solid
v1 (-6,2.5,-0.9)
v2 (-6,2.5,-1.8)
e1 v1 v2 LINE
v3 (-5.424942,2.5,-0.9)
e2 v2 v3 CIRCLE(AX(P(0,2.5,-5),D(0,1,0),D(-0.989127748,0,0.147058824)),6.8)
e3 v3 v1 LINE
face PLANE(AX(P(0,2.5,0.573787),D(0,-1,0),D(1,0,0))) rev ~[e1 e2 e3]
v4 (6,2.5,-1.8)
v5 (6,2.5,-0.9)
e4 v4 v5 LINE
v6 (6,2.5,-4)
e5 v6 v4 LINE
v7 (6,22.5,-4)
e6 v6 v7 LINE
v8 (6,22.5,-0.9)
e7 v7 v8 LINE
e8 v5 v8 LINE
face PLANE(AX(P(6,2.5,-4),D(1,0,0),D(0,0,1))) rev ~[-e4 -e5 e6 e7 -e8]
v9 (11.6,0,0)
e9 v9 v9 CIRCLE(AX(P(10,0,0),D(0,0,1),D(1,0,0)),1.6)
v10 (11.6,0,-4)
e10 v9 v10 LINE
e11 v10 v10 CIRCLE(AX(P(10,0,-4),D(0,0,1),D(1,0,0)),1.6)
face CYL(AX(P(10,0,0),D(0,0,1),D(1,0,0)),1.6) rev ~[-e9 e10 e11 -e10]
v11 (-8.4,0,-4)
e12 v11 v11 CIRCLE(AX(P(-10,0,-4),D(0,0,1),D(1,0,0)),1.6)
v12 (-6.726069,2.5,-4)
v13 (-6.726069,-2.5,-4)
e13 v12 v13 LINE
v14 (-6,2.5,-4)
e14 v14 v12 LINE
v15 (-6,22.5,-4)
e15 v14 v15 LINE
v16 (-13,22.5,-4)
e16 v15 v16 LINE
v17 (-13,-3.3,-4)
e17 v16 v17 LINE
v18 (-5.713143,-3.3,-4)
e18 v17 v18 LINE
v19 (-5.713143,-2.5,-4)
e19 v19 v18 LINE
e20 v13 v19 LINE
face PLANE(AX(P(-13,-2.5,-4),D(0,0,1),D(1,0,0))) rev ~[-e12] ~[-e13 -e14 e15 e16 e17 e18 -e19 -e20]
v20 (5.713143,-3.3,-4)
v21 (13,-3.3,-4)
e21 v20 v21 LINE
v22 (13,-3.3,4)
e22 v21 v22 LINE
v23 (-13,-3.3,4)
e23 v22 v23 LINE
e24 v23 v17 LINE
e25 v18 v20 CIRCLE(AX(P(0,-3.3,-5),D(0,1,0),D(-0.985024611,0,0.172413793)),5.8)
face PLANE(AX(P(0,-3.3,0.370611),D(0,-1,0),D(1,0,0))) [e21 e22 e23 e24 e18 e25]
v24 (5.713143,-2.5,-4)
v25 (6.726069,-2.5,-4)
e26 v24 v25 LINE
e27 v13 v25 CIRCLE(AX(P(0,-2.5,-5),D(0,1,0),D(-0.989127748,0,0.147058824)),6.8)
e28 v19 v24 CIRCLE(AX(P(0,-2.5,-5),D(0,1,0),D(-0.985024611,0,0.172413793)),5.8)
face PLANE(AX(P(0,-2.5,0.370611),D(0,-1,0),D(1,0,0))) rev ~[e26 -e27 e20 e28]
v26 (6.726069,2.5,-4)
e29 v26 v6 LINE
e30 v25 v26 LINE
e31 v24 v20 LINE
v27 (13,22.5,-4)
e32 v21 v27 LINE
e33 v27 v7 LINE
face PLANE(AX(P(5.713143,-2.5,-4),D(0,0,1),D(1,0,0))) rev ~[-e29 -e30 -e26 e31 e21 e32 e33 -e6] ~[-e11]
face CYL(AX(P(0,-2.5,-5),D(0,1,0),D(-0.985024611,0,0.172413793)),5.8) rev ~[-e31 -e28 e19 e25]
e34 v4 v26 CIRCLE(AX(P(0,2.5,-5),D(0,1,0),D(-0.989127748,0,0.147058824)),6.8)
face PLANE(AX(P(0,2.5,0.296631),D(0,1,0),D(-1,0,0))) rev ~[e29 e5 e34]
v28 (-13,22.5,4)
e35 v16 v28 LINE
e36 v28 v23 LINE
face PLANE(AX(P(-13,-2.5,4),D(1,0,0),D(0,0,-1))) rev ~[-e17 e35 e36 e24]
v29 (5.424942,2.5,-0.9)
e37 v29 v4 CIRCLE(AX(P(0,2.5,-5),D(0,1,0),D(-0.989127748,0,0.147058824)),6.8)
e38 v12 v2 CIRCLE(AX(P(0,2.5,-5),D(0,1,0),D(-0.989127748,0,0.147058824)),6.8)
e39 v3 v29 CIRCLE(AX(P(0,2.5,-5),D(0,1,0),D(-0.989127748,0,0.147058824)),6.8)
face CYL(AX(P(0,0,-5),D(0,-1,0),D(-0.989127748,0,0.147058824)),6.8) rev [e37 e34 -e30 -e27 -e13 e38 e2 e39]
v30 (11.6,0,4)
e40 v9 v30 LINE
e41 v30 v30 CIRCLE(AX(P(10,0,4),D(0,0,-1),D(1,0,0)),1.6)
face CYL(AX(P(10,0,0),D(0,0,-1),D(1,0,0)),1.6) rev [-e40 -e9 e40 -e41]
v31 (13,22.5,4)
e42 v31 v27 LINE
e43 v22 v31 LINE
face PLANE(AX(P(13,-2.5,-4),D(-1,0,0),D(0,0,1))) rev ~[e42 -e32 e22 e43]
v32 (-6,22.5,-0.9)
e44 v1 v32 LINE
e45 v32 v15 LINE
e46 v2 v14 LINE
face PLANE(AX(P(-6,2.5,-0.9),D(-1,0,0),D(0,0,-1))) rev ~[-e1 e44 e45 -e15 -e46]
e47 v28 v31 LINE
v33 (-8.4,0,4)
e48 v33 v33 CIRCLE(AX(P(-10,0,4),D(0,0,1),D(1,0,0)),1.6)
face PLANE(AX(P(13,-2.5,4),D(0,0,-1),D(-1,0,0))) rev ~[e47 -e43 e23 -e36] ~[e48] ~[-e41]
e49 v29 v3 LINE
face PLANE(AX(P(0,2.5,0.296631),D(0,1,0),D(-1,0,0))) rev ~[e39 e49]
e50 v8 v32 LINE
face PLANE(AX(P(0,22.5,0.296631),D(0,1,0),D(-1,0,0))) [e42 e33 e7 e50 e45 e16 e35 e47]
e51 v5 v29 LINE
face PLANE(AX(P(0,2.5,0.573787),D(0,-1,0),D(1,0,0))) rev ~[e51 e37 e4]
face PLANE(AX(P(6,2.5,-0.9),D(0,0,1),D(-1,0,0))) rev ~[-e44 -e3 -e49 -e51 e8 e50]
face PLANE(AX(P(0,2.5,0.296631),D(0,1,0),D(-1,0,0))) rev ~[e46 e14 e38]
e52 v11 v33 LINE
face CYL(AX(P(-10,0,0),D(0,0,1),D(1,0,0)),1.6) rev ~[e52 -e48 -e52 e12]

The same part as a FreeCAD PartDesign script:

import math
import FreeCAD as App
import Part
import Sketcher

doc = App.newDocument("Part")
body = doc.addObject("PartDesign::Body", "Body")

sketch1 = body.newObject("Sketcher::SketchObject", "Sketch")
sketch1.AttachmentSupport = (doc.getObject("XZ_Plane"), [""])
sketch1.MapMode = "FlatFace"
sketch1.addGeometry(Part.LineSegment(App.Vector(13, 4, 0), App.Vector(-13, 4, 0)), False)
sketch1.addGeometry(Part.LineSegment(App.Vector(-13, 4, 0), App.Vector(-13, -4, 0)), False)
sketch1.addGeometry(Part.LineSegment(App.Vector(-13, -4, 0), App.Vector(-7, -4, 0)), False)
sketch1.addGeometry(Part.ArcOfCircle(Part.Circle(App.Vector(0, -5, 0), App.Vector(0, 0, 1), 7), math.radians(8), math.radians(172)), False)
sketch1.addGeometry(Part.LineSegment(App.Vector(7, -4, 0), App.Vector(13, -4, 0)), False)
sketch1.addGeometry(Part.LineSegment(App.Vector(13, -4, 0), App.Vector(13, 4, 0)), False)
sketch1.addConstraint(Sketcher.Constraint("Coincident", 0, 2, 1, 1))
sketch1.addConstraint(Sketcher.Constraint("Coincident", 1, 2, 2, 1))
sketch1.addConstraint(Sketcher.Constraint("Coincident", 2, 2, 3, 2))
sketch1.addConstraint(Sketcher.Constraint("Coincident", 3, 1, 4, 1))
sketch1.addConstraint(Sketcher.Constraint("Coincident", 4, 2, 5, 1))
sketch1.addConstraint(Sketcher.Constraint("Coincident", 5, 2, 0, 1))
sketch1.addConstraint(Sketcher.Constraint("Horizontal", 0))
sketch1.addConstraint(Sketcher.Constraint("Vertical", 1))
sketch1.addConstraint(Sketcher.Constraint("Horizontal", 2))
sketch1.addConstraint(Sketcher.Constraint("Horizontal", 4))
sketch1.addConstraint(Sketcher.Constraint("Vertical", 5))
sketch1.addConstraint(Sketcher.Constraint("Symmetric", 0, 2, 4, 2, -1, 1))
sketch1.addConstraint(Sketcher.Constraint("Symmetric", 2, 2, 3, 1, -2))
sketch1.addConstraint(Sketcher.Constraint("Radius", 3, 6.8))
sketch1.addConstraint(Sketcher.Constraint("DistanceX", 0, 2, 0, 1, 26.0))
sketch1.addConstraint(Sketcher.Constraint("DistanceY", 1, 2, 1, 1, 8.0))
sketch1.addConstraint(Sketcher.Constraint("DistanceY", 3, 3, -1, 1, 5.0))
pad1 = body.newObject("PartDesign::Pad", "Pad")
pad1.Profile = sketch1
pad1.Length = 5
pad1.Midplane = True

sketch2 = body.newObject("Sketcher::SketchObject", "Sketch001")
sketch2.AttachmentSupport = (doc.getObject("XY_Plane"), [""])
sketch2.MapMode = "FlatFace"
sketch2.addGeometry(Part.Circle(App.Vector(10, 0, 0), App.Vector(0, 0, 1), 1.6), False)
sketch2.addGeometry(Part.Circle(App.Vector(-10, 0, 0), App.Vector(0, 0, 1), 1.6), False)
sketch2.addConstraint(Sketcher.Constraint("Equal", 0, 1))
sketch2.addConstraint(Sketcher.Constraint("Symmetric", 0, 3, 1, 3, -1, 1))
sketch2.addConstraint(Sketcher.Constraint("PointOnObject", 0, 3, -1))
sketch2.addConstraint(Sketcher.Constraint("Diameter", 0, 3.2))
sketch2.addConstraint(Sketcher.Constraint("DistanceX", -1, 1, 0, 3, 10.0))
pocket1 = body.newObject("PartDesign::Pocket", "Pocket")
pocket1.Profile = sketch2
pocket1.Length = 25
pocket1.Midplane = True

sketch3 = body.newObject("Sketcher::SketchObject", "Sketch002")
sketch3.AttachmentSupport = (doc.getObject("XZ_Plane"), [""])
sketch3.MapMode = "FlatFace"
sketch3.AttachmentOffset = App.Placement(App.Vector(0, 0, -2.5), App.Rotation())
sketch3.addGeometry(Part.LineSegment(App.Vector(-13, 4, 0), App.Vector(13, 4, 0)), False)
sketch3.addGeometry(Part.LineSegment(App.Vector(13, 4, 0), App.Vector(13, -4, 0)), False)
sketch3.addGeometry(Part.LineSegment(App.Vector(13, -4, 0), App.Vector(6, -4, 0)), False)
sketch3.addGeometry(Part.LineSegment(App.Vector(6, -4, 0), App.Vector(6, -0.9, 0)), False)
sketch3.addGeometry(Part.LineSegment(App.Vector(6, -0.9, 0), App.Vector(-6, -0.9, 0)), False)
sketch3.addGeometry(Part.LineSegment(App.Vector(-6, -0.9, 0), App.Vector(-6, -4, 0)), False)
sketch3.addGeometry(Part.LineSegment(App.Vector(-6, -4, 0), App.Vector(-13, -4, 0)), False)
sketch3.addGeometry(Part.LineSegment(App.Vector(-13, -4, 0), App.Vector(-13, 4, 0)), False)
sketch3.addConstraint(Sketcher.Constraint("Coincident", 0, 2, 1, 1))
sketch3.addConstraint(Sketcher.Constraint("Coincident", 1, 2, 2, 1))
sketch3.addConstraint(Sketcher.Constraint("Coincident", 2, 2, 3, 1))
sketch3.addConstraint(Sketcher.Constraint("Coincident", 3, 2, 4, 1))
sketch3.addConstraint(Sketcher.Constraint("Coincident", 4, 2, 5, 1))
sketch3.addConstraint(Sketcher.Constraint("Coincident", 5, 2, 6, 1))
sketch3.addConstraint(Sketcher.Constraint("Coincident", 6, 2, 7, 1))
sketch3.addConstraint(Sketcher.Constraint("Coincident", 7, 2, 0, 1))
sketch3.addConstraint(Sketcher.Constraint("Horizontal", 0))
sketch3.addConstraint(Sketcher.Constraint("Vertical", 1))
sketch3.addConstraint(Sketcher.Constraint("Horizontal", 2))
sketch3.addConstraint(Sketcher.Constraint("Vertical", 3))
sketch3.addConstraint(Sketcher.Constraint("Horizontal", 4))
sketch3.addConstraint(Sketcher.Constraint("Vertical", 5))
sketch3.addConstraint(Sketcher.Constraint("Horizontal", 6))
sketch3.addConstraint(Sketcher.Constraint("Vertical", 7))
sketch3.addConstraint(Sketcher.Constraint("Symmetric", 0, 2, 6, 2, -1, 1))
sketch3.addConstraint(Sketcher.Constraint("Symmetric", 2, 2, 5, 2, -2))
sketch3.addConstraint(Sketcher.Constraint("DistanceX", 0, 1, 0, 2, 26.0))
sketch3.addConstraint(Sketcher.Constraint("DistanceX", 2, 2, 2, 1, 7.0))
sketch3.addConstraint(Sketcher.Constraint("DistanceY", 1, 2, 1, 1, 8.0))
sketch3.addConstraint(Sketcher.Constraint("DistanceY", 3, 1, 3, 2, 3.1))
pad2 = body.newObject("PartDesign::Pad", "Pad001")
pad2.Profile = sketch3
pad2.Length = 20
pad2.Reversed = True

sketch4 = body.newObject("Sketcher::SketchObject", "Sketch003")
sketch4.AttachmentSupport = (doc.getObject("XZ_Plane"), [""])
sketch4.MapMode = "FlatFace"
sketch4.AttachmentOffset = App.Placement(App.Vector(0, 0, 2.5), App.Rotation())
sketch4.addGeometry(Part.LineSegment(App.Vector(13, 4, 0), App.Vector(-13, 4, 0)), False)
sketch4.addGeometry(Part.LineSegment(App.Vector(-13, 4, 0), App.Vector(-13, -4, 0)), False)
sketch4.addGeometry(Part.LineSegment(App.Vector(-13, -4, 0), App.Vector(-6, -4, 0)), False)
sketch4.addGeometry(Part.ArcOfCircle(Part.Circle(App.Vector(0, -5, 0), App.Vector(0, 0, 1), 6), math.radians(10), math.radians(170)), False)
sketch4.addGeometry(Part.LineSegment(App.Vector(6, -4, 0), App.Vector(13, -4, 0)), False)
sketch4.addGeometry(Part.LineSegment(App.Vector(13, -4, 0), App.Vector(13, 4, 0)), False)
sketch4.addConstraint(Sketcher.Constraint("Coincident", 0, 2, 1, 1))
sketch4.addConstraint(Sketcher.Constraint("Coincident", 1, 2, 2, 1))
sketch4.addConstraint(Sketcher.Constraint("Coincident", 2, 2, 3, 2))
sketch4.addConstraint(Sketcher.Constraint("Coincident", 3, 1, 4, 1))
sketch4.addConstraint(Sketcher.Constraint("Coincident", 4, 2, 5, 1))
sketch4.addConstraint(Sketcher.Constraint("Coincident", 5, 2, 0, 1))
sketch4.addConstraint(Sketcher.Constraint("Horizontal", 0))
sketch4.addConstraint(Sketcher.Constraint("Vertical", 1))
sketch4.addConstraint(Sketcher.Constraint("Horizontal", 2))
sketch4.addConstraint(Sketcher.Constraint("Horizontal", 4))
sketch4.addConstraint(Sketcher.Constraint("Vertical", 5))
sketch4.addConstraint(Sketcher.Constraint("Symmetric", 0, 2, 4, 2, -1, 1))
sketch4.addConstraint(Sketcher.Constraint("Symmetric", 2, 2, 3, 1, -2))
sketch4.addConstraint(Sketcher.Constraint("Radius", 3, 5.8))
sketch4.addConstraint(Sketcher.Constraint("DistanceX", 0, 2, 0, 1, 26.0))
sketch4.addConstraint(Sketcher.Constraint("DistanceY", 1, 2, 1, 1, 8.0))
sketch4.addConstraint(Sketcher.Constraint("DistanceY", 3, 3, -1, 1, 5.0))
pad3 = body.newObject("PartDesign::Pad", "Pad002")
pad3.Profile = sketch4
pad3.Length = 0.8

doc.recompute()
